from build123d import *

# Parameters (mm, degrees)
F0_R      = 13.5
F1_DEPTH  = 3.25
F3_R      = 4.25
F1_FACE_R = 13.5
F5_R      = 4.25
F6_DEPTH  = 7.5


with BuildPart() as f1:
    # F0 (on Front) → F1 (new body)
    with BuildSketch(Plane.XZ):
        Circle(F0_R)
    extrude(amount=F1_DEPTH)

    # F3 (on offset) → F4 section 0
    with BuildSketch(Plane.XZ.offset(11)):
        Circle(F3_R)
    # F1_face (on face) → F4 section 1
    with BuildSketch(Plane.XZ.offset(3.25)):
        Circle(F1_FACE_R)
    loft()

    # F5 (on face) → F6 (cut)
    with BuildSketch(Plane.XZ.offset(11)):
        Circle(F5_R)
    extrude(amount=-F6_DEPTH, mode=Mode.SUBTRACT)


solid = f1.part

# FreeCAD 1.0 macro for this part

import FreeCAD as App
import Part
import Sketcher
Q = App.Units.Quantity

doc = App.newDocument("Part")
body = doc.addObject("PartDesign::Body", "Body")

# Sketch on XZ plane
sketch1 = body.newObject("Sketcher::SketchObject", "Sketch")
sketch1.AttachmentSupport = (doc.getObject("XZ_Plane"), [""])
sketch1.MapMode = "FlatFace"
sketch1.addGeometry(Part.Circle(App.Vector(0, 0, 0), App.Vector(0, 0, 1), 14), False)
sketch1.addConstraint([
    Sketcher.Constraint("Coincident", 0, 3, -1, 1),
    Sketcher.Constraint("Diameter", 0, Q("27 mm")),
])
pad1 = body.newObject("PartDesign::Pad", "Pad")
pad1.Profile = sketch1
pad1.Length = 3.25

# Sketch on XZ plane
sketch2 = body.newObject("Sketcher::SketchObject", "Sketch001")
sketch2.AttachmentSupport = (doc.getObject("XZ_Plane"), [""])
sketch2.MapMode = "FlatFace"
sketch2.AttachmentOffset = App.Placement(App.Vector(0, 0, 11), App.Rotation())
sketch2.addGeometry(Part.Circle(App.Vector(0, 0, 0), App.Vector(0, 0, 1), 4.2), False)
sketch2.addConstraint([
    Sketcher.Constraint("Coincident", 0, 3, -1, 1),
    Sketcher.Constraint("Diameter", 0, Q("8.5 mm")),
])

# Sketch on XZ plane
sketch3 = body.newObject("Sketcher::SketchObject", "Sketch002")
sketch3.AttachmentSupport = (doc.getObject("XZ_Plane"), [""])
sketch3.MapMode = "FlatFace"
sketch3.AttachmentOffset = App.Placement(App.Vector(0, 0, 3.25), App.Rotation())
sketch3.addGeometry(Part.Circle(App.Vector(0, 0, 0), App.Vector(0, 0, 1), 14), False)
sketch3.addConstraint([
    Sketcher.Constraint("Coincident", 0, 3, -1, 1),
    Sketcher.Constraint("Diameter", 0, Q("27 mm")),
])

additiveloft = body.newObject("PartDesign::AdditiveLoft", "AdditiveLoft")
additiveloft.Profile = sketch2
additiveloft.Sections = [sketch3]

# Sketch on XZ plane
sketch4 = body.newObject("Sketcher::SketchObject", "Sketch003")
sketch4.AttachmentSupport = (doc.getObject("XZ_Plane"), [""])
sketch4.MapMode = "FlatFace"
sketch4.AttachmentOffset = App.Placement(App.Vector(0, 0, 11), App.Rotation())
sketch4.addGeometry(Part.Circle(App.Vector(0, 0, 0), App.Vector(0, 0, 1), 4.2), False)
sketch4.addConstraint([
    Sketcher.Constraint("Coincident", 0, 3, -1, 1),
    Sketcher.Constraint("Diameter", 0, Q("8.5 mm")),
])
pocket1 = body.newObject("PartDesign::Pocket", "Pocket")
pocket1.Profile = sketch4
pocket1.Length = 7.5

doc.recompute()
